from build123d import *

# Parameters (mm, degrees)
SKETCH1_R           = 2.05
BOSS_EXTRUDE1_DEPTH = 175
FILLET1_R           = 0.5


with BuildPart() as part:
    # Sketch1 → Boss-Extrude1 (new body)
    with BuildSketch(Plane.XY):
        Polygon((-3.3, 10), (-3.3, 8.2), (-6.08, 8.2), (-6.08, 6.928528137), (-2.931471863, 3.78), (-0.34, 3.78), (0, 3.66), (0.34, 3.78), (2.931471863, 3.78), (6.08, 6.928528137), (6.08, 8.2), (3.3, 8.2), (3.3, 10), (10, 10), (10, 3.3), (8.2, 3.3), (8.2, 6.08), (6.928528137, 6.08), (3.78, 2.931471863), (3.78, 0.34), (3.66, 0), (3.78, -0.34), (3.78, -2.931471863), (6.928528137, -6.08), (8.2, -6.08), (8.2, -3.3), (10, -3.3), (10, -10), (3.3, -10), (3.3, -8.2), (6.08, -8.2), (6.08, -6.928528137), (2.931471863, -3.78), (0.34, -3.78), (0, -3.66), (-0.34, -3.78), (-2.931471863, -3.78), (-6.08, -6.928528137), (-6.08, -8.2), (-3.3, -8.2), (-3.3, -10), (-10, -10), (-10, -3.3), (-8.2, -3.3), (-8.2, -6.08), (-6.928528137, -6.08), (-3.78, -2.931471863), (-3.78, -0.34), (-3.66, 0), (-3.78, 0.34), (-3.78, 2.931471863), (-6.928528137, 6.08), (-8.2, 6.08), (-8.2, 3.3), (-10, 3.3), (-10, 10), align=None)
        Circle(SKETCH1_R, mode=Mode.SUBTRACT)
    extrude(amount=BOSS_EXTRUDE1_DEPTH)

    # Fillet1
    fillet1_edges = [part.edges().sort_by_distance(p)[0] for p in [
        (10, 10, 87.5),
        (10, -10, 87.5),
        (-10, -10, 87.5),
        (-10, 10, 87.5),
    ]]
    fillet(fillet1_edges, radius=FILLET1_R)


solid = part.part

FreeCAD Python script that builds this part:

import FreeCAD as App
import Part
import Sketcher

V = App.Vector
Q = App.Units.Quantity


def edges_at(feature, points):
    """Names of the edges that pass closest to the given points."""
    edges = feature.Shape.Edges
    near = lambda p: min(range(len(edges)), key=lambda i: edges[i].distToShape(Part.Vertex(*p))[0])
    return sorted({f"Edge{near(p) + 1}" for p in points})

doc = App.newDocument("Part")
params = doc.addObject("Spreadsheet::Sheet", "Params")
for row, (alias, value) in enumerate([
    ("sketch1_diameter", "4.1 mm"),
    ("sketch1_width", "6.7 mm"),
    ("sketch1_width2", "1.8 mm"),
    ("sketch1_width3", "2.78 mm"),
    ("pad1_length", "175 mm"),
    ("fillet_radius", "0.5 mm"),
], start=1):
    params.set(f"A{row}", alias)
    params.set(f"B{row}", "=" + value)
    params.setAlias(f"B{row}", alias)

body = doc.addObject("PartDesign::Body", "Body")

sketch1 = doc.addObject("Sketcher::SketchObject", "Sketch")
body.addObject(sketch1)
sketch1.AttachmentSupport = (doc.XY_Plane, [""])
sketch1.MapMode = "FlatFace"
sketch1.addGeometry(Part.LineSegment(V(-3.3, 8.2, 0), V(-3.3, 10, 0)), False)
sketch1.addGeometry(Part.LineSegment(V(-3.3, 10, 0), V(-10, 10, 0)), False)
sketch1.addGeometry(Part.LineSegment(V(-10, 10, 0), V(-10, 3.3, 0)), False)
sketch1.addGeometry(Part.LineSegment(V(-10, 3.3, 0), V(-8.2, 3.3, 0)), False)
sketch1.addGeometry(Part.LineSegment(V(-8.2, 3.3, 0), V(-8.2, 6.08, 0)), False)
sketch1.addGeometry(Part.LineSegment(V(-8.2, 6.08, 0), V(-6.93, 6.08, 0)), False)
sketch1.addGeometry(Part.LineSegment(V(-6.93, 6.08, 0), V(-3.78, 2.93, 0)), False)
sketch1.addGeometry(Part.LineSegment(V(-3.78, 2.93, 0), V(-3.78, 0.34, 0)), False)
sketch1.addGeometry(Part.LineSegment(V(-3.78, 0.34, 0), V(-3.66, 0, 0)), False)
sketch1.addGeometry(Part.LineSegment(V(-3.66, 0, 0), V(-3.78, -0.34, 0)), False)
sketch1.addGeometry(Part.LineSegment(V(-3.78, -0.34, 0), V(-3.78, -2.93, 0)), False)
sketch1.addGeometry(Part.LineSegment(V(-3.78, -2.93, 0), V(-6.93, -6.08, 0)), False)
sketch1.addGeometry(Part.LineSegment(V(-6.93, -6.08, 0), V(-8.2, -6.08, 0)), False)
sketch1.addGeometry(Part.LineSegment(V(-8.2, -6.08, 0), V(-8.2, -3.3, 0)), False)
sketch1.addGeometry(Part.LineSegment(V(-8.2, -3.3, 0), V(-10, -3.3, 0)), False)
sketch1.addGeometry(Part.LineSegment(V(-10, -3.3, 0), V(-10, -10, 0)), False)
sketch1.addGeometry(Part.LineSegment(V(-10, -10, 0), V(-3.3, -10, 0)), False)
sketch1.addGeometry(Part.LineSegment(V(-3.3, -10, 0), V(-3.3, -8.2, 0)), False)
sketch1.addGeometry(Part.LineSegment(V(-3.3, -8.2, 0), V(-6.08, -8.2, 0)), False)
sketch1.addGeometry(Part.LineSegment(V(-6.08, -8.2, 0), V(-6.08, -6.93, 0)), False)
sketch1.addGeometry(Part.LineSegment(V(-6.08, -6.93, 0), V(-2.93, -3.78, 0)), False)
sketch1.addGeometry(Part.LineSegment(V(-2.93, -3.78, 0), V(-0.34, -3.78, 0)), False)
sketch1.addGeometry(Part.LineSegment(V(-0.34, -3.78, 0), V(0, -3.66, 0)), False)
sketch1.addGeometry(Part.LineSegment(V(0, -3.66, 0), V(0.34, -3.78, 0)), False)
sketch1.addGeometry(Part.LineSegment(V(0.34, -3.78, 0), V(2.93, -3.78, 0)), False)
sketch1.addGeometry(Part.LineSegment(V(2.93, -3.78, 0), V(6.08, -6.93, 0)), False)
sketch1.addGeometry(Part.LineSegment(V(6.08, -6.93, 0), V(6.08, -8.2, 0)), False)
sketch1.addGeometry(Part.LineSegment(V(6.08, -8.2, 0), V(3.3, -8.2, 0)), False)
sketch1.addGeometry(Part.LineSegment(V(3.3, -8.2, 0), V(3.3, -10, 0)), False)
sketch1.addGeometry(Part.LineSegment(V(3.3, -10, 0), V(10, -10, 0)), False)
sketch1.addGeometry(Part.LineSegment(V(10, -10, 0), V(10, -3.3, 0)), False)
sketch1.addGeometry(Part.LineSegment(V(10, -3.3, 0), V(8.2, -3.3, 0)), False)
sketch1.addGeometry(Part.LineSegment(V(8.2, -3.3, 0), V(8.2, -6.08, 0)), False)
sketch1.addGeometry(Part.LineSegment(V(8.2, -6.08, 0), V(6.93, -6.08, 0)), False)
sketch1.addGeometry(Part.LineSegment(V(6.93, -6.08, 0), V(3.78, -2.93, 0)), False)
sketch1.addGeometry(Part.LineSegment(V(3.78, -2.93, 0), V(3.78, -0.34, 0)), False)
sketch1.addGeometry(Part.LineSegment(V(3.78, -0.34, 0), V(3.66, 0, 0)), False)
sketch1.addGeometry(Part.LineSegment(V(3.66, 0, 0), V(3.78, 0.34, 0)), False)
sketch1.addGeometry(Part.LineSegment(V(3.78, 0.34, 0), V(3.78, 2.93, 0)), False)
sketch1.addGeometry(Part.LineSegment(V(3.78, 2.93, 0), V(6.93, 6.08, 0)), False)
sketch1.addGeometry(Part.LineSegment(V(6.93, 6.08, 0), V(8.2, 6.08, 0)), False)
sketch1.addGeometry(Part.LineSegment(V(8.2, 6.08, 0), V(8.2, 3.3, 0)), False)
sketch1.addGeometry(Part.LineSegment(V(8.2, 3.3, 0), V(10, 3.3, 0)), False)
sketch1.addGeometry(Part.LineSegment(V(10, 3.3, 0), V(10, 10, 0)), False)
sketch1.addGeometry(Part.LineSegment(V(10, 10, 0), V(3.3, 10, 0)), False)
sketch1.addGeometry(Part.LineSegment(V(3.3, 10, 0), V(3.3, 8.2, 0)), False)
sketch1.addGeometry(Part.LineSegment(V(3.3, 8.2, 0), V(6.08, 8.2, 0)), False)
sketch1.addGeometry(Part.LineSegment(V(6.08, 8.2, 0), V(6.08, 6.93, 0)), False)
sketch1.addGeometry(Part.LineSegment(V(6.08, 6.93, 0), V(2.93, 3.78, 0)), False)
sketch1.addGeometry(Part.LineSegment(V(2.93, 3.78, 0), V(0.34, 3.78, 0)), False)
sketch1.addGeometry(Part.LineSegment(V(0.34, 3.78, 0), V(0, 3.66, 0)), False)
sketch1.addGeometry(Part.LineSegment(V(0, 3.66, 0), V(-0.34, 3.78, 0)), False)
sketch1.addGeometry(Part.LineSegment(V(-0.34, 3.78, 0), V(-2.93, 3.78, 0)), False)
sketch1.addGeometry(Part.LineSegment(V(-2.93, 3.78, 0), V(-6.08, 6.93, 0)), False)
sketch1.addGeometry(Part.LineSegment(V(-6.08, 6.93, 0), V(-6.08, 8.2, 0)), False)
sketch1.addGeometry(Part.LineSegment(V(-6.08, 8.2, 0), V(-3.3, 8.2, 0)), False)
sketch1.addGeometry(Part.Circle(V(0, 0, 0), V(0, 0, 1), 2.05), False)
sketch1.addConstraint(Sketcher.Constraint("Coincident", 0, 2, 1, 1))
sketch1.addConstraint(Sketcher.Constraint("Coincident", 1, 2, 2, 1))
sketch1.addConstraint(Sketcher.Constraint("Coincident", 2, 2, 3, 1))
sketch1.addConstraint(Sketcher.Constraint("Coincident", 3, 2, 4, 1))
sketch1.addConstraint(Sketcher.Constraint("Coincident", 4, 2, 5, 1))
sketch1.addConstraint(Sketcher.Constraint("Coincident", 5, 2, 6, 1))
sketch1.addConstraint(Sketcher.Constraint("Coincident", 6, 2, 7, 1))
sketch1.addConstraint(Sketcher.Constraint("Coincident", 7, 2, 8, 1))
sketch1.addConstraint(Sketcher.Constraint("Coincident", 8, 2, 9, 1))
sketch1.addConstraint(Sketcher.Constraint("Coincident", 9, 2, 10, 1))
sketch1.addConstraint(Sketcher.Constraint("Coincident", 10, 2, 11, 1))
sketch1.addConstraint(Sketcher.Constraint("Coincident", 11, 2, 12, 1))
sketch1.addConstraint(Sketcher.Constraint("Coincident", 12, 2, 13, 1))
sketch1.addConstraint(Sketcher.Constraint("Coincident", 13, 2, 14, 1))
sketch1.addConstraint(Sketcher.Constraint("Coincident", 14, 2, 15, 1))
sketch1.addConstraint(Sketcher.Constraint("Coincident", 15, 2, 16, 1))
sketch1.addConstraint(Sketcher.Constraint("Coincident", 16, 2, 17, 1))
sketch1.addConstraint(Sketcher.Constraint("Coincident", 17, 2, 18, 1))
sketch1.addConstraint(Sketcher.Constraint("Coincident", 18, 2, 19, 1))
sketch1.addConstraint(Sketcher.Constraint("Coincident", 19, 2, 20, 1))
sketch1.addConstraint(Sketcher.Constraint("Coincident", 20, 2, 21, 1))
sketch1.addConstraint(Sketcher.Constraint("Coincident", 21, 2, 22, 1))
sketch1.addConstraint(Sketcher.Constraint("Coincident", 22, 2, 23, 1))
sketch1.addConstraint(Sketcher.Constraint("Coincident", 23, 2, 24, 1))
sketch1.addConstraint(Sketcher.Constraint("Coincident", 24, 2, 25, 1))
sketch1.addConstraint(Sketcher.Constraint("Coincident", 25, 2, 26, 1))
sketch1.addConstraint(Sketcher.Constraint("Coincident", 26, 2, 27, 1))
sketch1.addConstraint(Sketcher.Constraint("Coincident", 27, 2, 28, 1))
sketch1.addConstraint(Sketcher.Constraint("Coincident", 28, 2, 29, 1))
sketch1.addConstraint(Sketcher.Constraint("Coincident", 29, 2, 30, 1))
sketch1.addConstraint(Sketcher.Constraint("Coincident", 30, 2, 31, 1))
sketch1.addConstraint(Sketcher.Constraint("Coincident", 31, 2, 32, 1))
sketch1.addConstraint(Sketcher.Constraint("Coincident", 32, 2, 33, 1))
sketch1.addConstraint(Sketcher.Constraint("Coincident", 33, 2, 34, 1))
sketch1.addConstraint(Sketcher.Constraint("Coincident", 34, 2, 35, 1))
sketch1.addConstraint(Sketcher.Constraint("Coincident", 35, 2, 36, 1))
sketch1.addConstraint(Sketcher.Constraint("Coincident", 36, 2, 37, 1))
sketch1.addConstraint(Sketcher.Constraint("Coincident", 37, 2, 38, 1))
sketch1.addConstraint(Sketcher.Constraint("Coincident", 38, 2, 39, 1))
sketch1.addConstraint(Sketcher.Constraint("Coincident", 39, 2, 40, 1))
sketch1.addConstraint(Sketcher.Constraint("Coincident", 40, 2, 41, 1))
sketch1.addConstraint(Sketcher.Constraint("Coincident", 41, 2, 42, 1))
sketch1.addConstraint(Sketcher.Constraint("Coincident", 42, 2, 43, 1))
sketch1.addConstraint(Sketcher.Constraint("Coincident", 43, 2, 44, 1))
sketch1.addConstraint(Sketcher.Constraint("Coincident", 44, 2, 45, 1))
sketch1.addConstraint(Sketcher.Constraint("Coincident", 45, 2, 46, 1))
sketch1.addConstraint(Sketcher.Constraint("Coincident", 46, 2, 47, 1))
sketch1.addConstraint(Sketcher.Constraint("Coincident", 47, 2, 48, 1))
sketch1.addConstraint(Sketcher.Constraint("Coincident", 48, 2, 49, 1))
sketch1.addConstraint(Sketcher.Constraint("Coincident", 49, 2, 50, 1))
sketch1.addConstraint(Sketcher.Constraint("Coincident", 50, 2, 51, 1))
sketch1.addConstraint(Sketcher.Constraint("Coincident", 51, 2, 52, 1))
sketch1.addConstraint(Sketcher.Constraint("Coincident", 52, 2, 53, 1))
sketch1.addConstraint(Sketcher.Constraint("Coincident", 53, 2, 54, 1))
sketch1.addConstraint(Sketcher.Constraint("Coincident", 54, 2, 55, 1))
sketch1.addConstraint(Sketcher.Constraint("Coincident", 55, 2, 0, 1))
sketch1.addConstraint(Sketcher.Constraint("Vertical", 0))
sketch1.addConstraint(Sketcher.Constraint("Horizontal", 1))
sketch1.addConstraint(Sketcher.Constraint("Vertical", 2))
sketch1.addConstraint(Sketcher.Constraint("Horizontal", 3))
sketch1.addConstraint(Sketcher.Constraint("Vertical", 4))
sketch1.addConstraint(Sketcher.Constraint("Horizontal", 5))
sketch1.addConstraint(Sketcher.Constraint("Vertical", 7))
sketch1.addConstraint(Sketcher.Constraint("Vertical", 10))
sketch1.addConstraint(Sketcher.Constraint("Horizontal", 12))
sketch1.addConstraint(Sketcher.Constraint("Vertical", 13))
sketch1.addConstraint(Sketcher.Constraint("Horizontal", 14))
sketch1.addConstraint(Sketcher.Constraint("Vertical", 15))
sketch1.addConstraint(Sketcher.Constraint("Horizontal", 16))
sketch1.addConstraint(Sketcher.Constraint("Vertical", 17))
sketch1.addConstraint(Sketcher.Constraint("Horizontal", 18))
sketch1.addConstraint(Sketcher.Constraint("Vertical", 19))
sketch1.addConstraint(Sketcher.Constraint("Horizontal", 21))
sketch1.addConstraint(Sketcher.Constraint("Horizontal", 24))
sketch1.addConstraint(Sketcher.Constraint("Vertical", 26))
sketch1.addConstraint(Sketcher.Constraint("Horizontal", 27))
sketch1.addConstraint(Sketcher.Constraint("Vertical", 28))
sketch1.addConstraint(Sketcher.Constraint("Horizontal", 29))
sketch1.addConstraint(Sketcher.Constraint("Vertical", 30))
sketch1.addConstraint(Sketcher.Constraint("Horizontal", 31))
sketch1.addConstraint(Sketcher.Constraint("Vertical", 32))
sketch1.addConstraint(Sketcher.Constraint("Horizontal", 33))
sketch1.addConstraint(Sketcher.Constraint("Vertical", 35))
sketch1.addConstraint(Sketcher.Constraint("Vertical", 38))
sketch1.addConstraint(Sketcher.Constraint("Horizontal", 40))
sketch1.addConstraint(Sketcher.Constraint("Vertical", 41))
sketch1.addConstraint(Sketcher.Constraint("Horizontal", 42))
sketch1.addConstraint(Sketcher.Constraint("Vertical", 43))
sketch1.addConstraint(Sketcher.Constraint("Horizontal", 44))
sketch1.addConstraint(Sketcher.Constraint("Vertical", 45))
sketch1.addConstraint(Sketcher.Constraint("Horizontal", 46))
sketch1.addConstraint(Sketcher.Constraint("Vertical", 47))
sketch1.addConstraint(Sketcher.Constraint("Horizontal", 49))
sketch1.addConstraint(Sketcher.Constraint("Horizontal", 52))
sketch1.addConstraint(Sketcher.Constraint("Vertical", 54))
sketch1.addConstraint(Sketcher.Constraint("Horizontal", 55))
sketch1.addConstraint(Sketcher.Constraint("Coincident", 56, 3, -1, 1))
sketch1.addConstraint(Sketcher.Constraint("Symmetric", 0, 2, 28, 2, -1, 1))
sketch1.addConstraint(Sketcher.Constraint("Symmetric", 2, 2, 30, 2, -1, 1))
sketch1.addConstraint(Sketcher.Constraint("Symmetric", 4, 2, 32, 2, -1, 1))
sketch1.addConstraint(Sketcher.Constraint("Symmetric", 6, 2, 34, 2, -1, 1))
sketch1.addConstraint(Sketcher.Constraint("Symmetric", 8, 2, 36, 2, -1, 1))
sketch1.addConstraint(Sketcher.Constraint("Symmetric", 9, 2, 37, 2, -1, 1))
sketch1.addConstraint(Sketcher.Constraint("Symmetric", 11, 2, 39, 2, -1, 1))
sketch1.addConstraint(Sketcher.Constraint("Symmetric", 13, 2, 41, 2, -1, 1))
sketch1.addConstraint(Sketcher.Constraint("Symmetric", 15, 2, 43, 2, -1, 1))
sketch1.addConstraint(Sketcher.Constraint("Symmetric", 17, 2, 45, 2, -1, 1))
sketch1.addConstraint(Sketcher.Constraint("Symmetric", 19, 2, 47, 2, -1, 1))
sketch1.addConstraint(Sketcher.Constraint("Symmetric", 20, 2, 48, 2, -1, 1))
sketch1.addConstraint(Sketcher.Constraint("Symmetric", 22, 2, 50, 2, -1, 1))
sketch1.addConstraint(Sketcher.Constraint("Symmetric", 23, 2, 51, 2, -1, 1))
sketch1.addConstraint(Sketcher.Constraint("Symmetric", 25, 2, 53, 2, -1, 1))
sketch1.addConstraint(Sketcher.Constraint("Symmetric", 21, 2, 23, 2, -2))
sketch1.addConstraint(Sketcher.Constraint("Symmetric", 19, 2, 25, 2, -2))
sketch1.addConstraint(Sketcher.Constraint("Symmetric", 17, 2, 27, 2, -2))
sketch1.addConstraint(Sketcher.Constraint("Symmetric", 15, 2, 29, 2, -2))
sketch1.addConstraint(Sketcher.Constraint("Symmetric", 13, 2, 31, 2, -2))
sketch1.addConstraint(Sketcher.Constraint("Symmetric", 11, 2, 33, 2, -2))
sketch1.addConstraint(Sketcher.Constraint("Symmetric", 10, 2, 34, 2, -2))
sketch1.addConstraint(Sketcher.Constraint("PointOnObject", 8, 2, -1))
sketch1.addConstraint(Sketcher.Constraint("PointOnObject", 22, 2, -2))
sketch1.addConstraint(Sketcher.Constraint("Perpendicular", 6, 11))
sketch1.addConstraint(Sketcher.Constraint("Parallel", 11, 20))
sketch1.addConstraint(Sketcher.Constraint("Perpendicular", 8, 22))
sketch1.addConstraint(Sketcher.Constraint("Perpendicular", 9, 23))
sketch1.addConstraint(Sketcher.Constraint("Perpendicular", 20, 25))
sketch1.addConstraint(Sketcher.Constraint("Parallel", 25, 34))
sketch1.addConstraint(Sketcher.Constraint("Perpendicular", 22, 36))
sketch1.addConstraint(Sketcher.Constraint("Perpendicular", 34, 39))
sketch1.addConstraint(Sketcher.Constraint("Perpendicular", 36, 50))
sketch1.addConstraint(Sketcher.Constraint("Perpendicular", 48, 53))
sketch1.addConstraint(Sketcher.Constraint("Horizontal", 46, 2, 54, 2))
sketch1.addConstraint(Sketcher.Constraint("Equal", 42, 0))
sketch1.addConstraint(Sketcher.Constraint("Equal", 44, 2))
sketch1.addConstraint(Sketcher.Constraint("Equal", 55, 4))
sketch1.addConstraint(Sketcher.Constraint("Equal", 52, 7))
sketch1.addConstraint(Sketcher.Constraint("Equal", 40, 19))
sketch1.addConstraint(Sketcher.Constraint("Equal", 11, 20))
sketch1.addConstraint(Sketcher.Constraint("Equal", 9, 22))
sketch1.addConstraint(Sketcher.Constraint("Diameter", 56, Q("4.1 mm")))
sketch1.addConstraint(Sketcher.Constraint("DistanceX", 1, 2, 1, 1, Q("6.7 mm")))
sketch1.addConstraint(Sketcher.Constraint("DistanceX", 3, 1, 3, 2, Q("1.8 mm")))
sketch1.addConstraint(Sketcher.Constraint("DistanceY", -1, 1, 0, 2, Q("10 mm")))
sketch1.addConstraint(Sketcher.Constraint("DistanceX", 18, 2, 18, 1, Q("2.78 mm")))
sketch1.addConstraint(Sketcher.Constraint("DistanceX", 6, 2, -1, 1, Q("3.78 mm")))
sketch1.addConstraint(Sketcher.Constraint("DistanceY", -1, 1, 7, 2, Q("0.34 mm")))
sketch1.addConstraint(Sketcher.Constraint("DistanceX", 8, 2, -1, 1, Q("3.66 mm")))
sketch1.addConstraint(Sketcher.Constraint("DistanceX", 5, 1, 5, 2, Q("1.271472 mm")))
sketch1.setExpression("Constraints[139]", "Params.sketch1_diameter")
sketch1.setExpression("Constraints[140]", "Params.sketch1_width")
sketch1.setExpression("Constraints[141]", "Params.sketch1_width2")
sketch1.setExpression("Constraints[143]", "Params.sketch1_width3")
pad1 = doc.addObject("PartDesign::Pad", "Pad")
body.addObject(pad1)
pad1.Profile = sketch1
pad1.setExpression("Length", "Params.pad1_length")
doc.recompute()

fillet = doc.addObject("PartDesign::Fillet", "Fillet")
body.addObject(fillet)
fillet.Base = (pad1, edges_at(pad1, [
    (10, 10, 87.5),
    (10, -10, 87.5),
    (-10, -10, 87.5),
    (-10, 10, 87.5),
]))
fillet.setExpression("Radius", "Params.fillet_radius")

doc.recompute()
